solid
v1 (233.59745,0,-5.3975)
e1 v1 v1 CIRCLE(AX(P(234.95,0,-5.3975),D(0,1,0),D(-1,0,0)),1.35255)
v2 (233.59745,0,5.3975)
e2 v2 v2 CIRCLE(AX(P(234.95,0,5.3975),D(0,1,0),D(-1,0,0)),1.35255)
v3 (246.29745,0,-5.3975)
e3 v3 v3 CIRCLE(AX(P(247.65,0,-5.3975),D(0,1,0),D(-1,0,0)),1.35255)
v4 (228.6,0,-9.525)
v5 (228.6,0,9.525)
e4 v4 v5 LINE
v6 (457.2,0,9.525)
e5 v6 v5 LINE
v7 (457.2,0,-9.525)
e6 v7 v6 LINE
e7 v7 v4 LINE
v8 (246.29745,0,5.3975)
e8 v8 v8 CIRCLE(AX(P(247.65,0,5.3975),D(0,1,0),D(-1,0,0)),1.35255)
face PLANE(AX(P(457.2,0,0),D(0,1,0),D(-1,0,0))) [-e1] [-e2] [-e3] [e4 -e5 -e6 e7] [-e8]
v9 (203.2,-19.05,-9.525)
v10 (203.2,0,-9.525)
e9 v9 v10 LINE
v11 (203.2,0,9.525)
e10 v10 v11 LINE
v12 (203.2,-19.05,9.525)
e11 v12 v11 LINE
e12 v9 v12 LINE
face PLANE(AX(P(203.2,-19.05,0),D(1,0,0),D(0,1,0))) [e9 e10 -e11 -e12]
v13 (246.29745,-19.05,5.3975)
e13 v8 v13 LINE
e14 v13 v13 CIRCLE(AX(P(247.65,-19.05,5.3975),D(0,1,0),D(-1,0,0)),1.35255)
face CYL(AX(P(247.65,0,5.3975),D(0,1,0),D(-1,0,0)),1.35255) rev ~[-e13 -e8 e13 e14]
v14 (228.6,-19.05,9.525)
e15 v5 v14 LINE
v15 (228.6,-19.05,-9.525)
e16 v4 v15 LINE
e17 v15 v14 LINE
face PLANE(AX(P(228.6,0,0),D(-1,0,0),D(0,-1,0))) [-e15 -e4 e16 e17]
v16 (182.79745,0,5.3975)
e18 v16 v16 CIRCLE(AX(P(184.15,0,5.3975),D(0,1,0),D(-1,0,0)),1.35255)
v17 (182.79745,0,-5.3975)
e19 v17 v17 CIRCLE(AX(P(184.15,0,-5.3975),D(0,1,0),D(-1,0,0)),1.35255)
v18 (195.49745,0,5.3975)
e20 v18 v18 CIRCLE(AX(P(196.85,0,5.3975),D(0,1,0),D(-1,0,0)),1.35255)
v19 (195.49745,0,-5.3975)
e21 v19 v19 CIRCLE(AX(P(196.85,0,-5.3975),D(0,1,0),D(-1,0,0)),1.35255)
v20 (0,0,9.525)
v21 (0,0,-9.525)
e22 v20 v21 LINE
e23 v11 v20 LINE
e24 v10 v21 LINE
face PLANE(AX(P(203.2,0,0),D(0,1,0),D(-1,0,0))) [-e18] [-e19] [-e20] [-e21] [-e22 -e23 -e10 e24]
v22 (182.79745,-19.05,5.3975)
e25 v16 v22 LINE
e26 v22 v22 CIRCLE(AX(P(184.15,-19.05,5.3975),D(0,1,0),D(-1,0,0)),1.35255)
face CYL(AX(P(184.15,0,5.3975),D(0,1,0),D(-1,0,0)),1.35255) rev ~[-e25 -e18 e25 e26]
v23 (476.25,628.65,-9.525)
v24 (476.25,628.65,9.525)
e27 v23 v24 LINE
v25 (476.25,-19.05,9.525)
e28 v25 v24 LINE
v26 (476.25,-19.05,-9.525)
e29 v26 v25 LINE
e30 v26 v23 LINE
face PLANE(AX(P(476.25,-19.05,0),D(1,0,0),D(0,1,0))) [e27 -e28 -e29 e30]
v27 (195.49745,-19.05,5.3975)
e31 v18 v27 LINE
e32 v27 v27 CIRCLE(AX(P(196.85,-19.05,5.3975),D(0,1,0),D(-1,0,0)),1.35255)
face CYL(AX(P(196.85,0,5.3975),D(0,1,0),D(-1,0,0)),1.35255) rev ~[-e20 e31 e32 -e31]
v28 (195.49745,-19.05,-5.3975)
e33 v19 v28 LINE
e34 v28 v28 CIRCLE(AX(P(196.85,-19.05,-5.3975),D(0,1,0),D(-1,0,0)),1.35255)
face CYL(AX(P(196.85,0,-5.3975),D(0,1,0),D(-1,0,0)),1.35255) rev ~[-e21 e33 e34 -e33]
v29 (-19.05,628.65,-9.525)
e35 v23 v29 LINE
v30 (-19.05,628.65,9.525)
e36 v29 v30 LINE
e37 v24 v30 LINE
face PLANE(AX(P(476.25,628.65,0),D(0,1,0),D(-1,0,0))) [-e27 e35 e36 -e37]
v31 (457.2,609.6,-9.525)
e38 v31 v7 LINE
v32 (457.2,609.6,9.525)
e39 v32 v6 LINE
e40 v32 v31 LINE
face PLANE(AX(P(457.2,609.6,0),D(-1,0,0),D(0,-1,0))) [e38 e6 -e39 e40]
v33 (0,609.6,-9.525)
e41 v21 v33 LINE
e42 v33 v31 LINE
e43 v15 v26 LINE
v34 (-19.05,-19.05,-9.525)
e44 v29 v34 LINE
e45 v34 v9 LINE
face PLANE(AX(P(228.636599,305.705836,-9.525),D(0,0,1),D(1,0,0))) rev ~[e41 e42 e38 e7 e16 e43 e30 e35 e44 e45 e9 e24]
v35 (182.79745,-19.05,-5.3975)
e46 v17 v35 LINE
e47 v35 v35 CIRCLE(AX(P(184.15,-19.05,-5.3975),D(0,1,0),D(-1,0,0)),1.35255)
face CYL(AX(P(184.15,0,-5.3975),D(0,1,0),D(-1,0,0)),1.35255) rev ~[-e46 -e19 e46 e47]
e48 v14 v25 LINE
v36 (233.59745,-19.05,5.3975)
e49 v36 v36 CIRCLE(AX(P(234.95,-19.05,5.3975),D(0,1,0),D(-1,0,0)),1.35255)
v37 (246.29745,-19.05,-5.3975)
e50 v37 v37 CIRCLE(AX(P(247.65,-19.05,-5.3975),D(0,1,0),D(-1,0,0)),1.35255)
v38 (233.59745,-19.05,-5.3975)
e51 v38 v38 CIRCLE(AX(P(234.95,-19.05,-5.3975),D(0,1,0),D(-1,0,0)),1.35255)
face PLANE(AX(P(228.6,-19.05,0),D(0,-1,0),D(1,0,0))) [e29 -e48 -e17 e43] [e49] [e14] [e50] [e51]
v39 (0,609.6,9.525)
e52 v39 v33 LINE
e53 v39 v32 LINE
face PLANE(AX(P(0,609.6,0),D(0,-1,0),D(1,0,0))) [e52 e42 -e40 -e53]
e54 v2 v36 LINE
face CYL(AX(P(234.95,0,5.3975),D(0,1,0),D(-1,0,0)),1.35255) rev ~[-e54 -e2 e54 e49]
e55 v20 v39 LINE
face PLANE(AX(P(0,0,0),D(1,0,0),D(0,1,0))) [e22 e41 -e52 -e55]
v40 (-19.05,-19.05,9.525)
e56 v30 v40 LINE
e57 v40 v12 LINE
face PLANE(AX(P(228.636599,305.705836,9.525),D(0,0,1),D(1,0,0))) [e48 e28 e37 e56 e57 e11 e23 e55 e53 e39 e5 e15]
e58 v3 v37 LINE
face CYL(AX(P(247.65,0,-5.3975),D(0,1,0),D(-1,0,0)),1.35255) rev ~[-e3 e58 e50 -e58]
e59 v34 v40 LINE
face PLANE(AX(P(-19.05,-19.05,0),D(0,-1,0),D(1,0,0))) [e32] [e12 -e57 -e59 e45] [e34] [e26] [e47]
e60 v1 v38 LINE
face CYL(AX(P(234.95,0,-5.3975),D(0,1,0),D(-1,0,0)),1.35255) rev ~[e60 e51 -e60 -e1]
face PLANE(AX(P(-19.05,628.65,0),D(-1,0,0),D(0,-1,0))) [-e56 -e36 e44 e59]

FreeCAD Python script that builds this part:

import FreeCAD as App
import Part
import Sketcher

V = App.Vector
Q = App.Units.Quantity


def add_polygon(sketch, points):
    """Adds a closed chain of lines whose ends are joined by coincident constraints."""
    first, n = sketch.GeometryCount, len(points)
    for a, b in zip(points, points[1:] + points[:1]):
        sketch.addGeometry(Part.LineSegment(App.Vector(*a, 0), App.Vector(*b, 0)), False)
    for i in range(n):
        sketch.addConstraint(Sketcher.Constraint("Coincident", first + i, 2, first + (i + 1) % n, 1))

doc = App.newDocument("Part")
body = doc.addObject("PartDesign::Body", "Body")

# Sketch on XY plane
sketch1 = doc.addObject("Sketcher::SketchObject", "Sketch")
body.addObject(sketch1)
sketch1.AttachmentSupport = (doc.XY_Plane, [""])
sketch1.MapMode = "FlatFace"
add_polygon(sketch1, [(457.2, 609.6), (457.2, 0), (228.6, 0), (228.6, -19.05), (476.25, -19.05), (476.25, 628.65), (-19.05, 628.65), (-19.05, -19.05), (203.2, -19.05), (203.2, 0), (0, 0), (0, 609.6)])  # lines 0-11
sketch1.addConstraint(Sketcher.Constraint("Vertical", 0))
sketch1.addConstraint(Sketcher.Constraint("Horizontal", 1))
sketch1.addConstraint(Sketcher.Constraint("Vertical", 2))
sketch1.addConstraint(Sketcher.Constraint("Horizontal", 3))
sketch1.addConstraint(Sketcher.Constraint("Vertical", 4))
sketch1.addConstraint(Sketcher.Constraint("Horizontal", 5))
sketch1.addConstraint(Sketcher.Constraint("Vertical", 6))
sketch1.addConstraint(Sketcher.Constraint("Horizontal", 7))
sketch1.addConstraint(Sketcher.Constraint("Vertical", 8))
sketch1.addConstraint(Sketcher.Constraint("Horizontal", 9))
sketch1.addConstraint(Sketcher.Constraint("Vertical", 10))
sketch1.addConstraint(Sketcher.Constraint("Horizontal", 11))
sketch1.addConstraint(Sketcher.Constraint("Coincident", 9, 2, -1, 1))
sketch1.addConstraint(Sketcher.Constraint("PointOnObject", 0, 2, -1))
sketch1.addConstraint(Sketcher.Constraint("Horizontal", 3, 2, 6, 2))
sketch1.addConstraint(Sketcher.Constraint("DistanceX", 1, 2, 1, 1, Q("9 in")))
sketch1.addConstraint(Sketcher.Constraint("DistanceX", 9, 2, 9, 1, Q("8 in")))
sketch1.addConstraint(Sketcher.Constraint("DistanceX", 11, 1, 11, 2, Q("18 in")))
sketch1.addConstraint(Sketcher.Constraint("DistanceY", 0, 2, 0, 1, Q("24 in")))
sketch1.addConstraint(Sketcher.Constraint("DistanceX", 5, 2, 5, 1, Q("19.5 in")))
sketch1.addConstraint(Sketcher.Constraint("DistanceY", 4, 1, 4, 2, Q("25.5 in")))
sketch1.addConstraint(Sketcher.Constraint("DistanceX", 3, 1, 3, 2, Q("9.75 in")))
sketch1.addConstraint(Sketcher.Constraint("DistanceY", 2, 2, 2, 1, Q("0.75 in")))
pad1 = doc.addObject("PartDesign::Pad", "Pad")
body.addObject(pad1)
pad1.Profile = sketch1
pad1.Length = Q("0.75 in")
pad1.Midplane = True

# Sketch on XZ plane
sketch2 = doc.addObject("Sketcher::SketchObject", "Sketch001")
body.addObject(sketch2)
sketch2.AttachmentSupport = (doc.XZ_Plane, [""])
sketch2.MapMode = "FlatFace"
sketch2.addGeometry(Part.Circle(V(247.65, 5.3975, 0), V(0, 0, 1), 1.35255), False)
sketch2.addGeometry(Part.Circle(V(247.65, -5.3975, 0), V(0, 0, 1), 1.35255), False)
sketch2.addGeometry(Part.Circle(V(234.95, 5.3975, 0), V(0, 0, 1), 1.35255), False)
sketch2.addGeometry(Part.Circle(V(234.95, -5.3975, 0), V(0, 0, 1), 1.35255), False)
sketch2.addGeometry(Part.Circle(V(196.85, 5.3975, 0), V(0, 0, 1), 1.35255), False)
sketch2.addGeometry(Part.Circle(V(184.15, 5.3975, 0), V(0, 0, 1), 1.35255), False)
sketch2.addGeometry(Part.Circle(V(184.15, -5.3975, 0), V(0, 0, 1), 1.35255), False)
sketch2.addGeometry(Part.Circle(V(196.85, -5.3975, 0), V(0, 0, 1), 1.35255), False)
sketch2.addConstraint(Sketcher.Constraint("Equal", 0, 1))
sketch2.addConstraint(Sketcher.Constraint("Equal", 1, 2))
sketch2.addConstraint(Sketcher.Constraint("Equal", 2, 3))
sketch2.addConstraint(Sketcher.Constraint("Equal", 3, 4))
sketch2.addConstraint(Sketcher.Constraint("Equal", 4, 5))
sketch2.addConstraint(Sketcher.Constraint("Equal", 5, 6))
sketch2.addConstraint(Sketcher.Constraint("Equal", 6, 7))
sketch2.addConstraint(Sketcher.Constraint("Symmetric", 0, 3, 1, 3, -1))
sketch2.addConstraint(Sketcher.Constraint("Symmetric", 2, 3, 3, 3, -1))
sketch2.addConstraint(Sketcher.Constraint("Symmetric", 5, 3, 6, 3, -1))
sketch2.addConstraint(Sketcher.Constraint("Symmetric", 4, 3, 7, 3, -1))
sketch2.addConstraint(Sketcher.Constraint("Horizontal", 0, 3, 2, 3))
sketch2.addConstraint(Sketcher.Constraint("Horizontal", 2, 3, 4, 3))
sketch2.addConstraint(Sketcher.Constraint("Horizontal", 4, 3, 5, 3))
sketch2.addConstraint(Sketcher.Constraint("DistanceX", 4, 3, 0, 3, Q("2 in")))
sketch2.addConstraint(Sketcher.Constraint("DistanceX", 5, 3, 2, 3, Q("2 in")))
sketch2.addConstraint(Sketcher.Constraint("Diameter", 0, Q("0.1065 in")))
sketch2.addConstraint(Sketcher.Constraint("DistanceX", 2, 3, 0, 3, Q("0.5 in")))
sketch2.addConstraint(Sketcher.Constraint("DistanceX", -1, 1, 0, 3, Q("9.75 in")))
sketch2.addConstraint(Sketcher.Constraint("DistanceY", 1, 3, 0, 3, Q("0.425 in")))
pocket1 = doc.addObject("PartDesign::Pocket", "Pocket")
body.addObject(pocket1)
pocket1.Profile = sketch2
pocket1.Type = "ThroughAll"
pocket1.Reversed = True

doc.recompute()
